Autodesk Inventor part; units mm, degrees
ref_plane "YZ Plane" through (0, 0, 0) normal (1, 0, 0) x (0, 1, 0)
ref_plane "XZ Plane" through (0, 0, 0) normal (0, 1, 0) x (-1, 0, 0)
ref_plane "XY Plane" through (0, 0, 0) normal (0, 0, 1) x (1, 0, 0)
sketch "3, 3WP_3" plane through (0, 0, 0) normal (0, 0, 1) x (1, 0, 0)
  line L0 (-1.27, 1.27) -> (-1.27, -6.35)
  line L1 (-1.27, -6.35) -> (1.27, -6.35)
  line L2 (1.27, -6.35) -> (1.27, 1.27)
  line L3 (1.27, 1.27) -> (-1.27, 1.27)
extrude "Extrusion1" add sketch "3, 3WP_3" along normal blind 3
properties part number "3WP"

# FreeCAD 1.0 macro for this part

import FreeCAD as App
import Part
import Sketcher
Q = App.Units.Quantity


def add_polygon(sketch, points):
    """Adds a closed chain of lines whose ends are joined by coincident constraints."""
    first, n = sketch.GeometryCount, len(points)
    for a, b in zip(points, points[1:] + points[:1]):
        sketch.addGeometry(Part.LineSegment(App.Vector(*a, 0), App.Vector(*b, 0)), False)
    for i in range(n):
        sketch.addConstraint(Sketcher.Constraint("Coincident", first + i, 2, first + (i + 1) % n, 1))

doc = App.newDocument("Part")
body = doc.addObject("PartDesign::Body", "Body")

sketch1 = body.newObject("Sketcher::SketchObject", "Sketch")
sketch1.AttachmentSupport = (doc.getObject("XY_Plane"), [""])
sketch1.MapMode = "FlatFace"
add_polygon(sketch1, [(1.3, 1.3), (-1.3, 1.3), (-1.3, -6.3), (1.3, -6.3)])
sketch1.addConstraint([
    Sketcher.Constraint("Horizontal", 0),
    Sketcher.Constraint("Vertical", 1),
    Sketcher.Constraint("Horizontal", 2),
    Sketcher.Constraint("Vertical", 3),
    Sketcher.Constraint("DistanceX", 0, 2, 0, 1, Q("0.1 in")),
    Sketcher.Constraint("DistanceY", 1, 2, 1, 1, Q("0.3 in")),
    Sketcher.Constraint("DistanceX", 0, 2, -1, 1, Q("0.05 in")),
    Sketcher.Constraint("DistanceY", -1, 1, 0, 2, Q("0.05 in")),
])
pad1 = body.newObject("PartDesign::Pad", "Pad")
pad1.Profile = sketch1
pad1.Length = Q("0.1181102 in")

doc.recompute()
